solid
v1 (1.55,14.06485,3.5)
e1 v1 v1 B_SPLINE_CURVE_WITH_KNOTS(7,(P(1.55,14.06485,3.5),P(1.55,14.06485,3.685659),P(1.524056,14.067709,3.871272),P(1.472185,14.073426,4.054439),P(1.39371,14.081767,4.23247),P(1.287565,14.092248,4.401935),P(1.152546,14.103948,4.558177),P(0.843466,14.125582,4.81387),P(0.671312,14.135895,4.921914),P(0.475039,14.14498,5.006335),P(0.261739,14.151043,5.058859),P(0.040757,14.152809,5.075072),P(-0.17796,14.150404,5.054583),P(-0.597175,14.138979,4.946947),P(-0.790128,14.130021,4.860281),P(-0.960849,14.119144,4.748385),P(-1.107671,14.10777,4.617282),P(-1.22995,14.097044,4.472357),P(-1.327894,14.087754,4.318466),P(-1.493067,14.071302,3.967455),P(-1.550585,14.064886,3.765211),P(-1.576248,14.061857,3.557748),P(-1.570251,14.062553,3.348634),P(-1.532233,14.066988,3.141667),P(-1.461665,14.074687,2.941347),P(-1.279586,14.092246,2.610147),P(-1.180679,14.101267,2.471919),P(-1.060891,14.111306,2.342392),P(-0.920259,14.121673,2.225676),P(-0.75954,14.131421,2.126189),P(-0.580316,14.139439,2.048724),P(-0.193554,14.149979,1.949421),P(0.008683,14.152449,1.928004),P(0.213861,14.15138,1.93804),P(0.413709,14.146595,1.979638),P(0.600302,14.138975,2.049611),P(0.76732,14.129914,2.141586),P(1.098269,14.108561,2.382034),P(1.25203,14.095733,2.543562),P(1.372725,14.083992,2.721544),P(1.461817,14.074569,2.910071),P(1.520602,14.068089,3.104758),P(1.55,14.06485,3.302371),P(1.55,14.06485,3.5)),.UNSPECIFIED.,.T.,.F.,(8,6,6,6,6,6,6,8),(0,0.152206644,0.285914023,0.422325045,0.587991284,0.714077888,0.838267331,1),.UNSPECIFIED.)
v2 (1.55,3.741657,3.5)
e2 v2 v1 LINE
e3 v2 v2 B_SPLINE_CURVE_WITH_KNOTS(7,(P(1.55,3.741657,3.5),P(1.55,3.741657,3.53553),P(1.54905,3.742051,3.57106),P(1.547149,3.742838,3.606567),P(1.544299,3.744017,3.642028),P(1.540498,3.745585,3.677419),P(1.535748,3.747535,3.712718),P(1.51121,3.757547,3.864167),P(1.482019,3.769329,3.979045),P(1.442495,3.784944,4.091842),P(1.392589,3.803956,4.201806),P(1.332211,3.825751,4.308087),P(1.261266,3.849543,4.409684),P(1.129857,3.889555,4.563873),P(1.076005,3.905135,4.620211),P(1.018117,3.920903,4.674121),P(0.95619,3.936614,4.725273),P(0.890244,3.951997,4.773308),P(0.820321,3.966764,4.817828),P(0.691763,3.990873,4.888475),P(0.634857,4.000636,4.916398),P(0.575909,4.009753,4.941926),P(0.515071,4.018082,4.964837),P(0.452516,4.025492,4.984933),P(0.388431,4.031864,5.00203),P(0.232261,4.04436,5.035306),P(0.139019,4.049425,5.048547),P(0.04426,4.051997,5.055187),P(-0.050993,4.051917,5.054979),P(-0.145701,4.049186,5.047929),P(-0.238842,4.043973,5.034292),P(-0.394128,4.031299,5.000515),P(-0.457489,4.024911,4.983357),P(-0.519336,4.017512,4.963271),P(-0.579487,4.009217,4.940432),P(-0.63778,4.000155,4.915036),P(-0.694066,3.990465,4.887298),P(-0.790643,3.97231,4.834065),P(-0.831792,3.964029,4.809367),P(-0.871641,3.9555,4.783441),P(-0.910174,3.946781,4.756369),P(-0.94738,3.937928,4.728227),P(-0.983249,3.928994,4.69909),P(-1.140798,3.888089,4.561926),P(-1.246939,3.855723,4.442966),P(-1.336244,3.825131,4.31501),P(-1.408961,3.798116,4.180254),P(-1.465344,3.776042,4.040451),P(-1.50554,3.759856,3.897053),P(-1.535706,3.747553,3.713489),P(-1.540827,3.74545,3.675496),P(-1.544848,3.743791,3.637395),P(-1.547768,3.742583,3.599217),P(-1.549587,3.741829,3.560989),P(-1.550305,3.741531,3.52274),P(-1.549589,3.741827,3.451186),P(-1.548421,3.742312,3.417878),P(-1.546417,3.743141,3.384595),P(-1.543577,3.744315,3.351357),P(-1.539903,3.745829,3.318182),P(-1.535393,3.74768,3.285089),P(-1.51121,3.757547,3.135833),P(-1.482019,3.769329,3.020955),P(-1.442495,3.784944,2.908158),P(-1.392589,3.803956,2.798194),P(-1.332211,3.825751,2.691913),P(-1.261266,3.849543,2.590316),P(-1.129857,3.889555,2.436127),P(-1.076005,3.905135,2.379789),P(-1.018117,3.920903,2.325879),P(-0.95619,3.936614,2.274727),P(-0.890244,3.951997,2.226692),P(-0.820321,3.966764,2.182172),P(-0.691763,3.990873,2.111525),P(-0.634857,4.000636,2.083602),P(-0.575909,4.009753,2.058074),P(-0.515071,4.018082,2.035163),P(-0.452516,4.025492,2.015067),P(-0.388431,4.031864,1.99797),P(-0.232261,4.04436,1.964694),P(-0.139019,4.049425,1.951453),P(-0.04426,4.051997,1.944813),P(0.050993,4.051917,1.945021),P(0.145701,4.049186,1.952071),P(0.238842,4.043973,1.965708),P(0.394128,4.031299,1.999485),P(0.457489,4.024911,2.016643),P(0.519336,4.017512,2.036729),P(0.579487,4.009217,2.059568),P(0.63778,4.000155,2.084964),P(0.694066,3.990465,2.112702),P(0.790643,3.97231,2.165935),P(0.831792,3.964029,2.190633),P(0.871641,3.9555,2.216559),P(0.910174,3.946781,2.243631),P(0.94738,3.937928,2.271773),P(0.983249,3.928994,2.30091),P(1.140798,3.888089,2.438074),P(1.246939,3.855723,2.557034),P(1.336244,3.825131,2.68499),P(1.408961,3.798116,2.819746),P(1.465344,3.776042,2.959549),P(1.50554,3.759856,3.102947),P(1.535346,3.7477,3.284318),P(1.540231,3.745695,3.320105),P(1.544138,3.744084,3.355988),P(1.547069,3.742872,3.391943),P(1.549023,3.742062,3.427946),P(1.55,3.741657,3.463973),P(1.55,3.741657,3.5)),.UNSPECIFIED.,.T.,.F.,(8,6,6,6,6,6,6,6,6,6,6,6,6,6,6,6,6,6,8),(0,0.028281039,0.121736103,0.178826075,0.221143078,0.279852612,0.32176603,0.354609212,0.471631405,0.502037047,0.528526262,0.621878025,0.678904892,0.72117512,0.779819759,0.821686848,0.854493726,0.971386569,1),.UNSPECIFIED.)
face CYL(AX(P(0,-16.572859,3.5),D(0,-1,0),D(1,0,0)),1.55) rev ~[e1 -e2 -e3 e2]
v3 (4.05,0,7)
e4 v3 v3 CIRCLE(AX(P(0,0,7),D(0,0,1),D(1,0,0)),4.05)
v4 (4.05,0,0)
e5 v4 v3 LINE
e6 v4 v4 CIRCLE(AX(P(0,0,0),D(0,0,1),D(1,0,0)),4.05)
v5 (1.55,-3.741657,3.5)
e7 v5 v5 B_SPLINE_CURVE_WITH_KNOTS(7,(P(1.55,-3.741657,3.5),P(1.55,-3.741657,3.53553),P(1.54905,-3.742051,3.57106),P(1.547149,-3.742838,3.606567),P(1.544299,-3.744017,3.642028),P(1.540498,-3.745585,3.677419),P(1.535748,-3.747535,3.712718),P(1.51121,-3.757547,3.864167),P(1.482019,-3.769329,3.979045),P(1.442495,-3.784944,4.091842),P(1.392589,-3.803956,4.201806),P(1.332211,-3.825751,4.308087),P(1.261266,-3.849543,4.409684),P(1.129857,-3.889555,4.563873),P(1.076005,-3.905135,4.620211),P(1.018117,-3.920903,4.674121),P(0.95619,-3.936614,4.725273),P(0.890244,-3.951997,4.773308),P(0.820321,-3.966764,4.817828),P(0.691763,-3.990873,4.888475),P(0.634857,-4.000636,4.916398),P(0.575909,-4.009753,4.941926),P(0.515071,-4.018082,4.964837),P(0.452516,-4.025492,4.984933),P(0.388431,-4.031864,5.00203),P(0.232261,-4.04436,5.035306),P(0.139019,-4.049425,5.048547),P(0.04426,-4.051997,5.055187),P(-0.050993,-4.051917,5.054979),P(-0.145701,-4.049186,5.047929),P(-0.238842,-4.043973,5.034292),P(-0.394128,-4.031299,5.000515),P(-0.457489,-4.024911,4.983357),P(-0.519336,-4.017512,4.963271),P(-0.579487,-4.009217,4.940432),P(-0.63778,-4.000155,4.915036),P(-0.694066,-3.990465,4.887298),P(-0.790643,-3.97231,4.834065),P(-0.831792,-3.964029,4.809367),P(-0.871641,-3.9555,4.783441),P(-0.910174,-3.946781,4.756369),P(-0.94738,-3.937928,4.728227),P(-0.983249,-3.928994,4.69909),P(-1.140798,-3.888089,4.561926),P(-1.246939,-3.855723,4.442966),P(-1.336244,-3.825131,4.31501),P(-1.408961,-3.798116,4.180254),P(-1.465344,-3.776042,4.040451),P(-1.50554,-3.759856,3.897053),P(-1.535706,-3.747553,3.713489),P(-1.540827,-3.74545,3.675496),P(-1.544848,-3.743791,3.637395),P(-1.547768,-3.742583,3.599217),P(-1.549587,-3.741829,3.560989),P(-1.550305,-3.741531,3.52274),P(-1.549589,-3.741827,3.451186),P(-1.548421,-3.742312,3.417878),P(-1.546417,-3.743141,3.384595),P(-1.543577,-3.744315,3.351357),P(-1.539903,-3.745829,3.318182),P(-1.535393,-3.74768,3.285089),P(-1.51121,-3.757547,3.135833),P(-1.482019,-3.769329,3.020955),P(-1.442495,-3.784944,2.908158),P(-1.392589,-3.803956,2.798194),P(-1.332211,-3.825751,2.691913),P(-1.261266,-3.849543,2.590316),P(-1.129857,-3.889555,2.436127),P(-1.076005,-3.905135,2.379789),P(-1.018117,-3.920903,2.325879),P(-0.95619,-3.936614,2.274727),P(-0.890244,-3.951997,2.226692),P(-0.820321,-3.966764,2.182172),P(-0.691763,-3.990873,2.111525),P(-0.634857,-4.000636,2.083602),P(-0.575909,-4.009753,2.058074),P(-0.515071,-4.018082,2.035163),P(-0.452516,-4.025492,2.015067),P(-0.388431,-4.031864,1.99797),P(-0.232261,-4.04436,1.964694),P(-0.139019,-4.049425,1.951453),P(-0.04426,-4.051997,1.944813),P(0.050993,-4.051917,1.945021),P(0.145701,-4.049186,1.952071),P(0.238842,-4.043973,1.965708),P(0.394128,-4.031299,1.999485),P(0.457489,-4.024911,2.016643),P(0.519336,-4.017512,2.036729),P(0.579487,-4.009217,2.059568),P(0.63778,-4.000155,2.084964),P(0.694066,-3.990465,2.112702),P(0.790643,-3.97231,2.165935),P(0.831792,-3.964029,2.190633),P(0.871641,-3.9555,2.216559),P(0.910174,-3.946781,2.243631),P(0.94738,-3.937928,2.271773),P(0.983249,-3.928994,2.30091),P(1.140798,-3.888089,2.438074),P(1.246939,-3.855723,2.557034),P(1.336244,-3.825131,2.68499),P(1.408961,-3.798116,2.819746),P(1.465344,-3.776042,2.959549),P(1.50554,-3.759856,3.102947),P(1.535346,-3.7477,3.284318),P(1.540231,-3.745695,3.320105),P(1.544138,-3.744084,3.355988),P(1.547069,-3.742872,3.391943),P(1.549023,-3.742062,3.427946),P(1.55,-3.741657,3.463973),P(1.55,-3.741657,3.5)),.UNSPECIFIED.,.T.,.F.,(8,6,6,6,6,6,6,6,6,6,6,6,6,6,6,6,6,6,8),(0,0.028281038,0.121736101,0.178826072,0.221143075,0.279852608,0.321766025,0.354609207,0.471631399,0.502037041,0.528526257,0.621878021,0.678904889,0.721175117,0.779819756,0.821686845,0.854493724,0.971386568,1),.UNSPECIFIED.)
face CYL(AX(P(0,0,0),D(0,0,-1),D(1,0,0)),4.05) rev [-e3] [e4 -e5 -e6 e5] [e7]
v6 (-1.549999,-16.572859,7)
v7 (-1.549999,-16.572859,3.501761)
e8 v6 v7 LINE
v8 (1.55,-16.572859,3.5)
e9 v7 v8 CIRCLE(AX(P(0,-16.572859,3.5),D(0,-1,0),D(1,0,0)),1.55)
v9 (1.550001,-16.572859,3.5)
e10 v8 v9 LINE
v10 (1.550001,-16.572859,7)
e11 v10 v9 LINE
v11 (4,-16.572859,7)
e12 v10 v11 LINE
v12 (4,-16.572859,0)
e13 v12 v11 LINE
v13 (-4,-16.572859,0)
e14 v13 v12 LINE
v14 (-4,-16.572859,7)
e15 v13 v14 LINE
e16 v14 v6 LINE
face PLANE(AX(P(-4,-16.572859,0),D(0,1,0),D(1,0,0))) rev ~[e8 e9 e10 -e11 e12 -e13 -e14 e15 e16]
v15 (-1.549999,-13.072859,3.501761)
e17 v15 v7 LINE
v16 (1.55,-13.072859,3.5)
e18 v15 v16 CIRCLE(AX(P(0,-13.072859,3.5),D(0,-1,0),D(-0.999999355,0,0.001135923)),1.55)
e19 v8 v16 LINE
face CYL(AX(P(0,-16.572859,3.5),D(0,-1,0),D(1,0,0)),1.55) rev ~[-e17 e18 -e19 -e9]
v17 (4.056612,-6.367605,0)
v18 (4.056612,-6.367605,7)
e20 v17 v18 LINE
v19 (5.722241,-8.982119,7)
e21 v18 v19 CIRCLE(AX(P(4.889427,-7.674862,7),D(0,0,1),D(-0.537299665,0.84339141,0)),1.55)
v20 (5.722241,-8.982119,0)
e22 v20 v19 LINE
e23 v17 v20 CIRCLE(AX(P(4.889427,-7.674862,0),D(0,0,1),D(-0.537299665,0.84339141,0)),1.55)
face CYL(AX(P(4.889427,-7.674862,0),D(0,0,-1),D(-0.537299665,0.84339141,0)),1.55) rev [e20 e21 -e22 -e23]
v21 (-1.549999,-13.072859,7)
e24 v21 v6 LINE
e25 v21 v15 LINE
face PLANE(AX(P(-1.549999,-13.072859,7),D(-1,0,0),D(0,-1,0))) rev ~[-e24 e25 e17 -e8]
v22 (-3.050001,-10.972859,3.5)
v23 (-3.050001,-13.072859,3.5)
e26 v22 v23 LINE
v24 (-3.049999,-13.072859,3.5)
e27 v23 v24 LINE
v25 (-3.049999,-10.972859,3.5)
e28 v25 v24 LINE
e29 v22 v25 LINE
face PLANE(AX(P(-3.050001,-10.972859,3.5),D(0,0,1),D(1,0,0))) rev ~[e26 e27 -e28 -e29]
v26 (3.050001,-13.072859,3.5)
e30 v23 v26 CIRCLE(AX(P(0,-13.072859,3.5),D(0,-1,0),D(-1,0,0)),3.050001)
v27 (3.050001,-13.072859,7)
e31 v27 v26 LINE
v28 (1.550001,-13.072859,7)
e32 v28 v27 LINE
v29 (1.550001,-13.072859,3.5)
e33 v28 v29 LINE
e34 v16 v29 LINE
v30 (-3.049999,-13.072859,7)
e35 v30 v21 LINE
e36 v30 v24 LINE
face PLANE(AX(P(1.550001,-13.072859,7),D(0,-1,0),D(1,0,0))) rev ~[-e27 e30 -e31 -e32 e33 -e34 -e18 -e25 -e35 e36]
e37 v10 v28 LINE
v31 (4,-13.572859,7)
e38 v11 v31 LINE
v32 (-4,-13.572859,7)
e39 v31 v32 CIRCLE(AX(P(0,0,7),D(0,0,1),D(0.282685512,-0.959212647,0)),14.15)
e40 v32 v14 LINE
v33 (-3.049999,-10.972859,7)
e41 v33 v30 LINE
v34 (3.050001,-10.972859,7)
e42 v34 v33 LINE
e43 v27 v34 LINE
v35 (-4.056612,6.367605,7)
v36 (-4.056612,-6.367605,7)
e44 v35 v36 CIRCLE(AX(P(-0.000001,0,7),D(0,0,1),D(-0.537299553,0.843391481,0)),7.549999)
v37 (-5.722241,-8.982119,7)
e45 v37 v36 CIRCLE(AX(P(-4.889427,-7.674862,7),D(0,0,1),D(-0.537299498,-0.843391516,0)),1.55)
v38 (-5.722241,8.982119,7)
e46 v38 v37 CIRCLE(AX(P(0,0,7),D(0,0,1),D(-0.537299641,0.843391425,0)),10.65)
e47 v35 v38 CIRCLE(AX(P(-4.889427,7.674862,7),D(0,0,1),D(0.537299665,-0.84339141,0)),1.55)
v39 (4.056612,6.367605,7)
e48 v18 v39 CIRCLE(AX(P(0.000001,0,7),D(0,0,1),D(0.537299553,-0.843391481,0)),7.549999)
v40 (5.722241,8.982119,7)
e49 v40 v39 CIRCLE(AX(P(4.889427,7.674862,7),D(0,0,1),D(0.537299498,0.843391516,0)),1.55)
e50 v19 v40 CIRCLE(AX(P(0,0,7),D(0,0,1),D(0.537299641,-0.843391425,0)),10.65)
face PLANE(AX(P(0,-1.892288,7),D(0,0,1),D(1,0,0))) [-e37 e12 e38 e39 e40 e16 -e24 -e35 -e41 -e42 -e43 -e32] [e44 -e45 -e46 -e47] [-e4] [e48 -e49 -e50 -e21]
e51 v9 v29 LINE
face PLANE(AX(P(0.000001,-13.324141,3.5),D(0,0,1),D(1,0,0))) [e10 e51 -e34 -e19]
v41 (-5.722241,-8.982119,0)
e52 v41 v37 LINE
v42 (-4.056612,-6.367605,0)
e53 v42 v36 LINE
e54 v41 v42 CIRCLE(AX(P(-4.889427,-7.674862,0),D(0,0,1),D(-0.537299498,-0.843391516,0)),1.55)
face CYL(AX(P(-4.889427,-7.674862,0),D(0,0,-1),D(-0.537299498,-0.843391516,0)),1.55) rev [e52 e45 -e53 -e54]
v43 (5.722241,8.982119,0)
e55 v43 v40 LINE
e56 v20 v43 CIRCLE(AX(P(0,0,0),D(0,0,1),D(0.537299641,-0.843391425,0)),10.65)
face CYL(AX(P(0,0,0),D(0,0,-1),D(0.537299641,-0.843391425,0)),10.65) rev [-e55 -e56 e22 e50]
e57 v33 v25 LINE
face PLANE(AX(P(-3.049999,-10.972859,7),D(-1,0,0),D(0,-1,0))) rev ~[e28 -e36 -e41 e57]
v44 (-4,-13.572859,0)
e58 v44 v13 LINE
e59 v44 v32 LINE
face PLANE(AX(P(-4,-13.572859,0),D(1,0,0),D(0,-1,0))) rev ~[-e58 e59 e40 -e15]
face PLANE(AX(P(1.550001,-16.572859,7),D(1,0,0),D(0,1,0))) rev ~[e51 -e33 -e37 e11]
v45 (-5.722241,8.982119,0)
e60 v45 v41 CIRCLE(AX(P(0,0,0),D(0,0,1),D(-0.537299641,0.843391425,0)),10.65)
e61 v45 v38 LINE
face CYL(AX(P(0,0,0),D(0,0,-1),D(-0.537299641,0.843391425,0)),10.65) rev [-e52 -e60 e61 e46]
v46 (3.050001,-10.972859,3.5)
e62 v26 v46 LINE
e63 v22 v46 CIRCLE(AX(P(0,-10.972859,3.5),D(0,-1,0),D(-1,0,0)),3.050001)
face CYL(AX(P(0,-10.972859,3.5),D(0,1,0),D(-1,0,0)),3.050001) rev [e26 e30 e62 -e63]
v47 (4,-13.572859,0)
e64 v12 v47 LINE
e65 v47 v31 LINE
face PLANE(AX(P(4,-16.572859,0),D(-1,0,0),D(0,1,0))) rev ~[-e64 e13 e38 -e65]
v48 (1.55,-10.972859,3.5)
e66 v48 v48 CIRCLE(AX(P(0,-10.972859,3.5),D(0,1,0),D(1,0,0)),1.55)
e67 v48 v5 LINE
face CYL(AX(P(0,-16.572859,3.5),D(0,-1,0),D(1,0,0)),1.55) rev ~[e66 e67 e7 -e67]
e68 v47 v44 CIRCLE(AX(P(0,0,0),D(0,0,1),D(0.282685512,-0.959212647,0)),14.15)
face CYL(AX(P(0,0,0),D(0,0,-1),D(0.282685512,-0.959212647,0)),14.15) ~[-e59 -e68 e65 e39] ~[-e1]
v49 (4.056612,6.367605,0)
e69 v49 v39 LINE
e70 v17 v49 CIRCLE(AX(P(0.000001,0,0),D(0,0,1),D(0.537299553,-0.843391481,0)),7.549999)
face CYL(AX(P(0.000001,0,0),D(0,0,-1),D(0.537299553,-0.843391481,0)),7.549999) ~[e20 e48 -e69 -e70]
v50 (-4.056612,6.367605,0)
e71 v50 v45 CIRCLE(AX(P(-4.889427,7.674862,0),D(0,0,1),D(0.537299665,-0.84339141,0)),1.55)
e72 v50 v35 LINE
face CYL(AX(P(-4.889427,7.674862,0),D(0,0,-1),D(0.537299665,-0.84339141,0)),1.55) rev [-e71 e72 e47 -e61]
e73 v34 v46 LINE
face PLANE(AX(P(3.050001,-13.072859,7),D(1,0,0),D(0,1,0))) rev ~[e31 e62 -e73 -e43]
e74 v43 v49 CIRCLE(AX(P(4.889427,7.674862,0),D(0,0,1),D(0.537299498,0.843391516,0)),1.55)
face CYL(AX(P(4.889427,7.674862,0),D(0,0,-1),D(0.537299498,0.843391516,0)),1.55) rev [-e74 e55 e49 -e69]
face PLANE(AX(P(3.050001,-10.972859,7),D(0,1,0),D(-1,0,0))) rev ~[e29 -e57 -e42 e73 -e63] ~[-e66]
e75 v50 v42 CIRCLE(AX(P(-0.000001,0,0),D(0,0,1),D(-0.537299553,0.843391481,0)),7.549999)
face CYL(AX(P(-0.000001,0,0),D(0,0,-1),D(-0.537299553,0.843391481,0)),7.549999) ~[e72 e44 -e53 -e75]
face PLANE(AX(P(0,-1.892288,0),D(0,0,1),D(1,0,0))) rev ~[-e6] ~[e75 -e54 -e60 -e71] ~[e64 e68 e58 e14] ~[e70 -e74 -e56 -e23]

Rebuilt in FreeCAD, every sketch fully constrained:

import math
import FreeCAD as App
import Part
import Sketcher
from FreeCAD import Vector
Q = App.Units.Quantity

doc = App.newDocument("Part")
body = doc.addObject("PartDesign::Body", "Body")

sketch1 = body.newObject("Sketcher::SketchObject", "Sketch")
sketch1.AttachmentSupport = (doc.getObject("XY_Plane"), [""])
sketch1.MapMode = "FlatFace"
sketch1.addGeometry([
    Part.ArcOfCircle(Part.Circle(Vector(0, 0, 0), Vector(0, 0, 1), 14.15), math.radians(-73.57945), math.radians(253.57945)),
    Part.LineSegment(Vector(-4, -13.572859, 0), Vector(-4, -16.572859, 0)),
    Part.LineSegment(Vector(-4, -16.572859, 0), Vector(4, -16.572859, 0)),
    Part.LineSegment(Vector(4, -16.572859, 0), Vector(4, -13.572859, 0)),
    Part.ArcOfCircle(Part.Circle(Vector(-4.889427, 7.674862, 0), Vector(0, 0, 1), 1.55), math.radians(-57.499996), math.radians(122.499993)),
    Part.ArcOfCircle(Part.Circle(Vector(-0.000001, 0, 0), Vector(0, 0, 1), 7.549999), math.radians(122.499996), math.radians(237.500004)),
    Part.ArcOfCircle(Part.Circle(Vector(-4.889427, -7.674862, 0), Vector(0, 0, 1), 1.55), math.radians(-122.499993), math.radians(57.499996)),
    Part.ArcOfCircle(Part.Circle(Vector(0, 0, 0), Vector(0, 0, 1), 10.65), math.radians(122.500002), math.radians(237.499998)),
    Part.Circle(Vector(0, 0, 0), Vector(0, 0, 1), 4.05),
    Part.ArcOfCircle(Part.Circle(Vector(4.889427, -7.674862, 0), Vector(0, 0, 1), 1.55), math.radians(122.500004), math.radians(302.499993)),
    Part.ArcOfCircle(Part.Circle(Vector(0.000001, 0, 0), Vector(0, 0, 1), 7.549999), math.radians(-57.500004), math.radians(57.500004)),
    Part.ArcOfCircle(Part.Circle(Vector(4.889427, 7.674862, 0), Vector(0, 0, 1), 1.55), math.radians(57.500007), math.radians(237.499996)),
    Part.ArcOfCircle(Part.Circle(Vector(0, 0, 0), Vector(0, 0, 1), 10.65), math.radians(-57.499998), math.radians(57.499998)),
], False)
sketch1.addConstraint([
    Sketcher.Constraint("Coincident", 0, 2, 1, 1),
    Sketcher.Constraint("Coincident", 1, 2, 2, 1),
    Sketcher.Constraint("Coincident", 2, 2, 3, 1),
    Sketcher.Constraint("Coincident", 3, 2, 0, 1),
    Sketcher.Constraint("Tangent", 4, 1, 5, 1),
    Sketcher.Constraint("Tangent", 5, 2, 6, 2),
    Sketcher.Constraint("Tangent", 6, 1, 7, 2),
    Sketcher.Constraint("Tangent", 7, 1, 4, 2),
    Sketcher.Constraint("Tangent", 9, 1, 10, 1),
    Sketcher.Constraint("Tangent", 10, 2, 11, 2),
    Sketcher.Constraint("Tangent", 11, 1, 12, 2),
    Sketcher.Constraint("Tangent", 12, 1, 9, 2),
    Sketcher.Constraint("Vertical", 1),
    Sketcher.Constraint("Horizontal", 2),
    Sketcher.Constraint("Vertical", 3),
    Sketcher.Constraint("Coincident", 0, 3, -1, 1),
    Sketcher.Constraint("Coincident", 5, 3, -1, 1),
    Sketcher.Constraint("Coincident", 7, 3, -1, 1),
    Sketcher.Constraint("Coincident", 8, 3, -1, 1),
    Sketcher.Constraint("Coincident", 10, 3, -1, 1),
    Sketcher.Constraint("Coincident", 12, 3, -1, 1),
    Sketcher.Constraint("Equal", 6, 9),
    Sketcher.Constraint("Equal", 5, 10),
    Sketcher.Constraint("Horizontal", 6, 3, 9, 3),
    Sketcher.Constraint("Horizontal", 4, 3, 11, 3),
    Sketcher.Constraint("Horizontal", 0, 2, 3, 2),
    Sketcher.Constraint("Vertical", 4, 3, 6, 3),
    Sketcher.Constraint("Diameter", 8, Q("8.1 mm")),
    Sketcher.Constraint("DistanceX", 2, 1, 2, 2, Q("8 mm")),
    Sketcher.Constraint("DistanceY", 1, 2, 1, 1, Q("3 mm")),
    Sketcher.Constraint("Radius", 0, Q("14.15 mm")),
    Sketcher.Constraint("Radius", 4, Q("1.55 mm")),
    Sketcher.Constraint("Radius", 5, Q("7.549999 mm")),
    Sketcher.Constraint("DistanceY", -1, 1, 4, 3, Q("7.674862 mm")),
])
pad1 = body.newObject("PartDesign::Pad", "Pad")
pad1.Profile = sketch1
pad1.Length = 7

sketch2 = body.newObject("Sketcher::SketchObject", "Sketch001")
sketch2.AttachmentSupport = (doc.getObject("XZ_Plane"), [""])
sketch2.MapMode = "FlatFace"
sketch2.AttachmentOffset = App.Placement(Vector(0, 0, 16.572859), App.Rotation())
sketch2.addGeometry(Part.Circle(Vector(0, 3.5, 0), Vector(0, 0, 1), 1.55), False)
sketch2.addConstraint([
    Sketcher.Constraint("PointOnObject", 0, 3, -2),
    Sketcher.Constraint("Diameter", 0, Q("3.1 mm")),
    Sketcher.Constraint("DistanceY", -1, 1, 0, 3, Q("3.5 mm")),
])
pocket1 = body.newObject("PartDesign::Pocket", "Pocket")
pocket1.Profile = sketch2
pocket1.Type = "ThroughAll"

sketch3 = body.newObject("Sketcher::SketchObject", "Sketch002")
sketch3.AttachmentSupport = (doc.getObject("XY_Plane"), [""])
sketch3.MapMode = "FlatFace"
sketch3.AttachmentOffset = App.Placement(Vector(0, 0, 7), App.Rotation())
sketch3.addGeometry([
    Part.LineSegment(Vector(-3.049999, -10.972859, 0), Vector(-3.049999, -13.072859, 0)),
    Part.LineSegment(Vector(-3.049999, -13.072859, 0), Vector(-1.549999, -13.072859, 0)),
    Part.LineSegment(Vector(-1.549999, -13.072859, 0), Vector(-1.549999, -16.572859, 0)),
    Part.LineSegment(Vector(-1.549999, -16.572859, 0), Vector(1.550001, -16.572859, 0)),
    Part.LineSegment(Vector(1.550001, -16.572859, 0), Vector(1.550001, -13.072859, 0)),
    Part.LineSegment(Vector(1.550001, -13.072859, 0), Vector(3.050001, -13.072859, 0)),
    Part.LineSegment(Vector(3.050001, -13.072859, 0), Vector(3.050001, -10.972859, 0)),
    Part.LineSegment(Vector(3.050001, -10.972859, 0), Vector(-3.049999, -10.972859, 0)),
], False)
sketch3.addConstraint([
    Sketcher.Constraint("Coincident", 0, 2, 1, 1),
    Sketcher.Constraint("Coincident", 1, 2, 2, 1),
    Sketcher.Constraint("Coincident", 2, 2, 3, 1),
    Sketcher.Constraint("Coincident", 3, 2, 4, 1),
    Sketcher.Constraint("Coincident", 4, 2, 5, 1),
    Sketcher.Constraint("Coincident", 5, 2, 6, 1),
    Sketcher.Constraint("Coincident", 6, 2, 7, 1),
    Sketcher.Constraint("Coincident", 7, 2, 0, 1),
    Sketcher.Constraint("Vertical", 0),
    Sketcher.Constraint("Horizontal", 1),
    Sketcher.Constraint("Vertical", 2),
    Sketcher.Constraint("Horizontal", 3),
    Sketcher.Constraint("Vertical", 4),
    Sketcher.Constraint("Horizontal", 5),
    Sketcher.Constraint("Vertical", 6),
    Sketcher.Constraint("Horizontal", 7),
    Sketcher.Constraint("Symmetric", 1, 2, 4, 2, -2),
    Sketcher.Constraint("Equal", 1, 5),
    Sketcher.Constraint("DistanceX", 1, 1, 1, 2, Q("1.5 mm")),
    Sketcher.Constraint("DistanceX", 3, 1, 3, 2, Q("3.1 mm")),
    Sketcher.Constraint("DistanceY", 0, 2, 0, 1, Q("2.1 mm")),
    Sketcher.Constraint("DistanceY", 2, 2, 2, 1, Q("3.5 mm")),
    Sketcher.Constraint("DistanceY", 0, 2, -1, 1, Q("13.072859 mm")),
])
pocket2 = body.newObject("PartDesign::Pocket", "Pocket001")
pocket2.Profile = sketch3
pocket2.Length = 3.5

sketch4 = body.newObject("Sketcher::SketchObject", "Sketch003")
sketch4.AttachmentSupport = (doc.getObject("XZ_Plane"), [""])
sketch4.MapMode = "FlatFace"
sketch4.AttachmentOffset = App.Placement(Vector(0, 0, 10.972859), App.Rotation())
sketch4.addGeometry([
    Part.ArcOfCircle(Part.Circle(Vector(0, 3.5, 0), Vector(0, 0, 1), 3.050001), math.radians(180), math.radians(360)),
    Part.LineSegment(Vector(3.050001, 3.5, 0), Vector(-3.050001, 3.5, 0)),
], False)
sketch4.addConstraint([
    Sketcher.Constraint("Coincident", 0, 1, 1, 2),
    Sketcher.Constraint("Coincident", 1, 1, 0, 2),
    Sketcher.Constraint("Horizontal", 1),
    Sketcher.Constraint("PointOnObject", 0, 3, -2),
    Sketcher.Constraint("Radius", 0, Q("3.050001 mm")),
    Sketcher.Constraint("DistanceY", -1, 1, 0, 3, Q("3.5 mm")),
    Sketcher.Constraint("DistanceY", -1, 1, 0, 1, Q("3.5 mm")),
])
pocket3 = body.newObject("PartDesign::Pocket", "Pocket002")
pocket3.Profile = sketch4
pocket3.Length = 2.1
pocket3.Reversed = True

doc.recompute()
